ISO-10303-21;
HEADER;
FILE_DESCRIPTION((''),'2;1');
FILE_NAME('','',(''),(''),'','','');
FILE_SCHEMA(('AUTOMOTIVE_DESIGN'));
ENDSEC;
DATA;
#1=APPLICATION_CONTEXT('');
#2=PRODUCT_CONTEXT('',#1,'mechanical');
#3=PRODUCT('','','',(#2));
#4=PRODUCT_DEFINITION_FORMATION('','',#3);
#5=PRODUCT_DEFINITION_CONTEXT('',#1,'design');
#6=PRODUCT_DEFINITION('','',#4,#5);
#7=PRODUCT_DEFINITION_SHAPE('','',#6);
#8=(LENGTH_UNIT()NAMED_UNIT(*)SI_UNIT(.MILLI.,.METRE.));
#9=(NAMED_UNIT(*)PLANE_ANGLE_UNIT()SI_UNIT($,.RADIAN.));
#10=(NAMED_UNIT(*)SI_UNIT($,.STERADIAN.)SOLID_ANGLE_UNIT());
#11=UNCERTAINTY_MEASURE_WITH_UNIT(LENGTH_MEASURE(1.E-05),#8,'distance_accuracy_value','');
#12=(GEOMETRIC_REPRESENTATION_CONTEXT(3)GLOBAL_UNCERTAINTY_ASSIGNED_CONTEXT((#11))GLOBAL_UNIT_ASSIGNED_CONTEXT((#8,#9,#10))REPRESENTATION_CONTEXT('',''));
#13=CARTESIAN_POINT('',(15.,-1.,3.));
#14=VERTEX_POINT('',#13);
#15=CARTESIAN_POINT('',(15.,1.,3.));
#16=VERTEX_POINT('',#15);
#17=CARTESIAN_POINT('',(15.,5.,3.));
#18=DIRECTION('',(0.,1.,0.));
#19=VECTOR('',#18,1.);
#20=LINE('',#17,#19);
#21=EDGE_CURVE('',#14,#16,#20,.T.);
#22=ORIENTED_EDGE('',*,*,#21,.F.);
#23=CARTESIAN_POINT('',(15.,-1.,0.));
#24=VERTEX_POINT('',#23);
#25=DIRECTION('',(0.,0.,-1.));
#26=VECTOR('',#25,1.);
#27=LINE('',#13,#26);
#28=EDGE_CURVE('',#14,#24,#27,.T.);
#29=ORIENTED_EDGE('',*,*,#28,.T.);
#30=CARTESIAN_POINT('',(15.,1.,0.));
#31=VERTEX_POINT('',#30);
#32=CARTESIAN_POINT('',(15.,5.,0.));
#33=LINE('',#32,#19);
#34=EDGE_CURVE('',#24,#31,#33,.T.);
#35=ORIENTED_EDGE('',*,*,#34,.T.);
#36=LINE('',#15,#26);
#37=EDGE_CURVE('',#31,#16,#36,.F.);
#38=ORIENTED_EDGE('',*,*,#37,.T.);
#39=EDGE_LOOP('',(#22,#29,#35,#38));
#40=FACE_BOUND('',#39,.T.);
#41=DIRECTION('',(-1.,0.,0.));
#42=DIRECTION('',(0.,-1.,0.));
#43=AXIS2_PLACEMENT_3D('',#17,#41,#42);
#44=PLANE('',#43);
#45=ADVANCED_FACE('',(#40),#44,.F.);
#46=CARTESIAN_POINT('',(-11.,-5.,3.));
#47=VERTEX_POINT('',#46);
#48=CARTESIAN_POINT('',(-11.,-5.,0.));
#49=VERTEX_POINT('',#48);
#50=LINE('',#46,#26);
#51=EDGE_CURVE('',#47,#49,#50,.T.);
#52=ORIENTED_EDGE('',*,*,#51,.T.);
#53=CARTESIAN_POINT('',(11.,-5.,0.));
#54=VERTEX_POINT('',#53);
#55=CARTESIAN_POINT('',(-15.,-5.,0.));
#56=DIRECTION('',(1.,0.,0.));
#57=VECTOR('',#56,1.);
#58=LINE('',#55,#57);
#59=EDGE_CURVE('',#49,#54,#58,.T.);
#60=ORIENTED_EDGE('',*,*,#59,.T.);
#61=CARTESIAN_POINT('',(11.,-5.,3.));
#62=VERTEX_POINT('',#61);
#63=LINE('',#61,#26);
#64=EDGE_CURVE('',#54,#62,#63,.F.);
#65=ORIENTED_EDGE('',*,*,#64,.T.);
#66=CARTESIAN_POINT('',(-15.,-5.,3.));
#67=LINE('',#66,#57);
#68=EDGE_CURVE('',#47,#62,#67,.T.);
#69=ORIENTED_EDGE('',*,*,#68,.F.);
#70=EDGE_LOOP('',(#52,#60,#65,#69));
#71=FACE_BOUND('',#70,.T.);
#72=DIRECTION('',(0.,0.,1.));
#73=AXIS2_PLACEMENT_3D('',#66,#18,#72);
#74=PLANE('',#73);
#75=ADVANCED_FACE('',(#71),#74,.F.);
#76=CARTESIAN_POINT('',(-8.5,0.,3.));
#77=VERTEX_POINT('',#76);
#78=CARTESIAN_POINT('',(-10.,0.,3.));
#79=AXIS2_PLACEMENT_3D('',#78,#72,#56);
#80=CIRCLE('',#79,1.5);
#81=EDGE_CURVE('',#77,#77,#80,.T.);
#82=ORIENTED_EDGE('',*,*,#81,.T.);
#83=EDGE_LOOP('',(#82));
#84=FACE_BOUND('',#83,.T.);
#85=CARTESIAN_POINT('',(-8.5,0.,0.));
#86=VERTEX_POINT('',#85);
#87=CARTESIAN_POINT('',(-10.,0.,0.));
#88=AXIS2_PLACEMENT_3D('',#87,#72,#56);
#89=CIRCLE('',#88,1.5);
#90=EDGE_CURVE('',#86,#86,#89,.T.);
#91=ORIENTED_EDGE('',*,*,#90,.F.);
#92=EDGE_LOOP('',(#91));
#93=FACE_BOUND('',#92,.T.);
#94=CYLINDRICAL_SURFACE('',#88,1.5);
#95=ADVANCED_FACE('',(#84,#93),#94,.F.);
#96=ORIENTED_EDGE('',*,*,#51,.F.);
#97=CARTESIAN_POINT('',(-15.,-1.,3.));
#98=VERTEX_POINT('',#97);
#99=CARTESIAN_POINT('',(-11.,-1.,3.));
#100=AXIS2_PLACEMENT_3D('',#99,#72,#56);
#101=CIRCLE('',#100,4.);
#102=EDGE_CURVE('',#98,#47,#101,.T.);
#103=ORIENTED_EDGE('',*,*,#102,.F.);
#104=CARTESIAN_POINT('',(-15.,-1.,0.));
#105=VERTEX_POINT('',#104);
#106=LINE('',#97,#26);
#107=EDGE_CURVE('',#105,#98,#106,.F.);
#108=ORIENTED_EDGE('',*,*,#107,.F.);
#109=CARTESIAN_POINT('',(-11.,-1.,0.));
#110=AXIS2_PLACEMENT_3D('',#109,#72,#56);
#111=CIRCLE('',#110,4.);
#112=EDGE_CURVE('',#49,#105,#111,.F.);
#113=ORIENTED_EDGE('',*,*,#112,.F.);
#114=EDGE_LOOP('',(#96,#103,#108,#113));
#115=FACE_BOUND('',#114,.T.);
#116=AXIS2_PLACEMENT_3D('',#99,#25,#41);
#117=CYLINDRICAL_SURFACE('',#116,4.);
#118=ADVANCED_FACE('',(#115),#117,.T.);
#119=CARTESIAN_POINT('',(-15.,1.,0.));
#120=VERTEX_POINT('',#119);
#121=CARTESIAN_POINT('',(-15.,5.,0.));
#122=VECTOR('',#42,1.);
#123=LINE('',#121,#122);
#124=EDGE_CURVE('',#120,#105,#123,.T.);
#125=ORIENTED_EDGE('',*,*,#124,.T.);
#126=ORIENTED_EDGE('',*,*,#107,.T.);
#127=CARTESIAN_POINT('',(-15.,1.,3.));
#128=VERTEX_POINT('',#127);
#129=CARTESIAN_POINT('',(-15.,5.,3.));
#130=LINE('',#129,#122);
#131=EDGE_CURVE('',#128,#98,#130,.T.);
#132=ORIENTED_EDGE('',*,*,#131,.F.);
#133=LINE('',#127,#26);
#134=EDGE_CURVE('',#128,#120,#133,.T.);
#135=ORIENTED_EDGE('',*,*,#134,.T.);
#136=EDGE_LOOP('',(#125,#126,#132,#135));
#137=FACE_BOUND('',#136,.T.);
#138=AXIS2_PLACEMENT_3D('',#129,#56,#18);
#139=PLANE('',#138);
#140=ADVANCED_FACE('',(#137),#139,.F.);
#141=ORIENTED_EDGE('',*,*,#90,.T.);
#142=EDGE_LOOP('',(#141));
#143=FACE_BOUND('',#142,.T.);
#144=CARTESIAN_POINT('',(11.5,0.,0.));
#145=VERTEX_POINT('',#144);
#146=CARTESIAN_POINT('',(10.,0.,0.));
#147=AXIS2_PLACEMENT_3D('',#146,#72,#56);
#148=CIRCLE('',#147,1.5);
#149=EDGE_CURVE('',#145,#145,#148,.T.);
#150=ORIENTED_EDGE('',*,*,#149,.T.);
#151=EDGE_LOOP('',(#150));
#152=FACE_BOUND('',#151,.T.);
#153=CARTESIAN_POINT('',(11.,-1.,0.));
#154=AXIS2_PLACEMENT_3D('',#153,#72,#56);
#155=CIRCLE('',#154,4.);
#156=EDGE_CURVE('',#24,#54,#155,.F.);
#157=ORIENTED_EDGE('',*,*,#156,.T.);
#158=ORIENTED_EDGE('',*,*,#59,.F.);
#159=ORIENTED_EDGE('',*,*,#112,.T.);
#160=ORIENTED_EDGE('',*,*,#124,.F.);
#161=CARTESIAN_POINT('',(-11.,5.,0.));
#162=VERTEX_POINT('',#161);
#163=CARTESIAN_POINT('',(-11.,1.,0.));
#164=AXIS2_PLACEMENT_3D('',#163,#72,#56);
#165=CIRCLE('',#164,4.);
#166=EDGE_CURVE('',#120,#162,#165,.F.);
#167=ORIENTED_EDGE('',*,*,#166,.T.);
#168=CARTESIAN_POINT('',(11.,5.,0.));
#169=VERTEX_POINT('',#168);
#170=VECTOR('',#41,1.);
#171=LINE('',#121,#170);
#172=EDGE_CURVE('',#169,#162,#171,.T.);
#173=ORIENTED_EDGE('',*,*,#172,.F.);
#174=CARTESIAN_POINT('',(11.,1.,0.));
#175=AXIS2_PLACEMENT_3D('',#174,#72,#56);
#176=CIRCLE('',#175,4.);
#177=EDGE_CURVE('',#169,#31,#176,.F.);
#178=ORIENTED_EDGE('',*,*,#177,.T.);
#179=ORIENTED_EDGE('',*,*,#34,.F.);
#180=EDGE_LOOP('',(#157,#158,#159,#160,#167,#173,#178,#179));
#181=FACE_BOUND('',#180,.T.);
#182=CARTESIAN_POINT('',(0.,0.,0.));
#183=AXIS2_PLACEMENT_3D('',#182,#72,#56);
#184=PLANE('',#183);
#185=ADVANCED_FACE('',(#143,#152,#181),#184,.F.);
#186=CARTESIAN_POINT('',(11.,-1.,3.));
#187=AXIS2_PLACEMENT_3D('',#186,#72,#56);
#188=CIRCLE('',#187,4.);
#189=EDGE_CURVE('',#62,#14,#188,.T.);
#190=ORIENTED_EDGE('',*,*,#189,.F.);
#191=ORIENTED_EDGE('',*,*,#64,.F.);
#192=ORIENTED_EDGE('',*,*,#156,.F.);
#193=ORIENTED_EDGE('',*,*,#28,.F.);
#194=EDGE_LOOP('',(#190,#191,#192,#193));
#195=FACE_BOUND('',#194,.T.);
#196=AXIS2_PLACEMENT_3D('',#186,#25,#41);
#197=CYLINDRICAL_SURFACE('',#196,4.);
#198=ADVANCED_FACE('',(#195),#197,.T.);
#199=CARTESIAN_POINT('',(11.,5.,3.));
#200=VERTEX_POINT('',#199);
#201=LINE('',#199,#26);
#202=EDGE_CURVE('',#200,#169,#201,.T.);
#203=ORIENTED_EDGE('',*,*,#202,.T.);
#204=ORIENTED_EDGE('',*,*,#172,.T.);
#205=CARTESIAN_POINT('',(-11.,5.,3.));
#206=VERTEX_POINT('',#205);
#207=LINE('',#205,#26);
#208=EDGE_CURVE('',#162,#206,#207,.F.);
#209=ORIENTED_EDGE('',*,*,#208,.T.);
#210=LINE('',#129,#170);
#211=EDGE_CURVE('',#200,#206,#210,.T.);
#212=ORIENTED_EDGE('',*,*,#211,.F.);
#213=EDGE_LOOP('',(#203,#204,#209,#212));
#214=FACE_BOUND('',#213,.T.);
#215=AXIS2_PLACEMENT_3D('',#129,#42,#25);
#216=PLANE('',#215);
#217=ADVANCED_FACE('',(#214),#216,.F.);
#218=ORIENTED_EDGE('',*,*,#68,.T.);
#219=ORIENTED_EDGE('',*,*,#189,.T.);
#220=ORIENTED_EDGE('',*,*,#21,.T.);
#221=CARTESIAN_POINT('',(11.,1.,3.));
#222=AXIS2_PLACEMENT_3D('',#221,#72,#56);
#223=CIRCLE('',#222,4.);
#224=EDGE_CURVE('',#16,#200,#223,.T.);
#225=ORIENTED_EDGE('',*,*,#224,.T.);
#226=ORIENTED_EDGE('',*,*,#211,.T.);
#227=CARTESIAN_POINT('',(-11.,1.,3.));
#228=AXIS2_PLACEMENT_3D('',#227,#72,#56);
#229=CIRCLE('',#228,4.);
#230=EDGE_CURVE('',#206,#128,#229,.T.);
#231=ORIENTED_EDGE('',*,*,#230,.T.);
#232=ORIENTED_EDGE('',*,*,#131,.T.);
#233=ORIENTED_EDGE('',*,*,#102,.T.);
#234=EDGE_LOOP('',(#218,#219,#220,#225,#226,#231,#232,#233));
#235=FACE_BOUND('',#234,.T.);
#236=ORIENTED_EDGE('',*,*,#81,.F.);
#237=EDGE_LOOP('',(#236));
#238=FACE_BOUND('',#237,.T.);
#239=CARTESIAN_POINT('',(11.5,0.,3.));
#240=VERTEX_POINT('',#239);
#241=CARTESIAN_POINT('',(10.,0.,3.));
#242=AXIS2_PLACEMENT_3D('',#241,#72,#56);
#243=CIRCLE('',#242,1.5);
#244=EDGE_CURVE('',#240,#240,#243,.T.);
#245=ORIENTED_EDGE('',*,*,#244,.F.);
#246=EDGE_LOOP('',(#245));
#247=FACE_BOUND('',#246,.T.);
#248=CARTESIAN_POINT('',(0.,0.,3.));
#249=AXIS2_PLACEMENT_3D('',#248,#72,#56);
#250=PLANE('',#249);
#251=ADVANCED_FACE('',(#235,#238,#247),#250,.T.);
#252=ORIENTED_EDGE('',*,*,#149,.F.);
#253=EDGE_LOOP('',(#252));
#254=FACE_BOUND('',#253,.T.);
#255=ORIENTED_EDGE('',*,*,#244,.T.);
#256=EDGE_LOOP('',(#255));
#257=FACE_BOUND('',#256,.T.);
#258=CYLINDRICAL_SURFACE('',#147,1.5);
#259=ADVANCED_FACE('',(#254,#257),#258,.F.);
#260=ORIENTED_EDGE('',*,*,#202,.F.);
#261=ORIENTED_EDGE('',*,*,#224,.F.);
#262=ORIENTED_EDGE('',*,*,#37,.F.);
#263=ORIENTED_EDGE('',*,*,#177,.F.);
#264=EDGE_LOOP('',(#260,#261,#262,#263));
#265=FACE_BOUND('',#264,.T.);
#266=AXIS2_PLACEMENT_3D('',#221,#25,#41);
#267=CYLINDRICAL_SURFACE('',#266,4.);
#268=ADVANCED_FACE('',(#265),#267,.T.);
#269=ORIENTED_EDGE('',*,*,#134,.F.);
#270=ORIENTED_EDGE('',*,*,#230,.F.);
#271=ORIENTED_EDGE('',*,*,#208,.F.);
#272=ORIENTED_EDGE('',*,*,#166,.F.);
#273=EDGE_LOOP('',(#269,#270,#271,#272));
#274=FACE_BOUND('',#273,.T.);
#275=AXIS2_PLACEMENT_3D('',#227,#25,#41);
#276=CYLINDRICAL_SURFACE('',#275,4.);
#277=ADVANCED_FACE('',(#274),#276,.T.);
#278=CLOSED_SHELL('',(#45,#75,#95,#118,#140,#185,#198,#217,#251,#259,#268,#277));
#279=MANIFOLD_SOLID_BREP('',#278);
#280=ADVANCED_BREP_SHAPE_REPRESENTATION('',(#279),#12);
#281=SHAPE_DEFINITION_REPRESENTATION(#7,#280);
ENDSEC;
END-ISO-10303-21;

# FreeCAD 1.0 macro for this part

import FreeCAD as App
import Part
import Sketcher

V = App.Vector


def edges_at(feature, points):
    """Names of the edges that pass closest to the given points."""
    edges = feature.Shape.Edges
    near = lambda p: min(range(len(edges)), key=lambda i: edges[i].distToShape(Part.Vertex(*p))[0])
    return sorted({f"Edge{near(p) + 1}" for p in points})


def add_polygon(sketch, points):
    """Adds a closed chain of lines whose ends are joined by coincident constraints."""
    first, n = sketch.GeometryCount, len(points)
    for a, b in zip(points, points[1:] + points[:1]):
        sketch.addGeometry(Part.LineSegment(App.Vector(*a, 0), App.Vector(*b, 0)), False)
    for i in range(n):
        sketch.addConstraint(Sketcher.Constraint("Coincident", first + i, 2, first + (i + 1) % n, 1))

doc = App.newDocument("Part")
body = doc.addObject("PartDesign::Body", "Body")

sketch1 = doc.addObject("Sketcher::SketchObject", "Sketch")
body.addObject(sketch1)
sketch1.AttachmentSupport = (doc.XY_Plane, [""])
sketch1.MapMode = "FlatFace"
add_polygon(sketch1, [(-15, 5), (-15, -5), (15, -5), (15, 5)])
sketch1.addConstraint(Sketcher.Constraint("Vertical", 0))
sketch1.addConstraint(Sketcher.Constraint("Horizontal", 1))
sketch1.addConstraint(Sketcher.Constraint("Vertical", 2))
sketch1.addConstraint(Sketcher.Constraint("Horizontal", 3))
sketch1.addConstraint(Sketcher.Constraint("Symmetric", 0, 2, 2, 2, -1, 1))
sketch1.addConstraint(Sketcher.Constraint("DistanceX", 1, 1, 1, 2, 30.0))
sketch1.addConstraint(Sketcher.Constraint("DistanceY", 0, 2, 0, 1, 10.0))
pad1 = doc.addObject("PartDesign::Pad", "Pad")
body.addObject(pad1)
pad1.Profile = sketch1
pad1.Length = 3

sketch2 = doc.addObject("Sketcher::SketchObject", "Sketch001")
body.addObject(sketch2)
sketch2.AttachmentSupport = (doc.XY_Plane, [""])
sketch2.MapMode = "FlatFace"
sketch2.AttachmentOffset = App.Placement(V(0, 0, 3), App.Rotation())
sketch2.addGeometry(Part.Circle(V(10, 0, 0), V(0, 0, 1), 1.5), False)
sketch2.addGeometry(Part.Circle(V(-10, 0, 0), V(0, 0, 1), 1.5), False)
sketch2.addConstraint(Sketcher.Constraint("Equal", 0, 1))
sketch2.addConstraint(Sketcher.Constraint("Symmetric", 0, 3, 1, 3, -1, 1))
sketch2.addConstraint(Sketcher.Constraint("PointOnObject", 0, 3, -1))
sketch2.addConstraint(Sketcher.Constraint("Diameter", 0, 3.0))
sketch2.addConstraint(Sketcher.Constraint("DistanceX", -1, 1, 0, 3, 10.0))
pocket1 = doc.addObject("PartDesign::Pocket", "Pocket")
body.addObject(pocket1)
pocket1.Profile = sketch2
pocket1.Length = 3
doc.recompute()

fillet = doc.addObject("PartDesign::Fillet", "Fillet")
body.addObject(fillet)
fillet.Base = (pocket1, edges_at(pocket1, [
    (-15, 5, 1.5),
    (15, 5, 1.5),
    (15, -5, 1.5),
    (-15, -5, 1.5),
]))
fillet.Radius = 4

doc.recompute()
